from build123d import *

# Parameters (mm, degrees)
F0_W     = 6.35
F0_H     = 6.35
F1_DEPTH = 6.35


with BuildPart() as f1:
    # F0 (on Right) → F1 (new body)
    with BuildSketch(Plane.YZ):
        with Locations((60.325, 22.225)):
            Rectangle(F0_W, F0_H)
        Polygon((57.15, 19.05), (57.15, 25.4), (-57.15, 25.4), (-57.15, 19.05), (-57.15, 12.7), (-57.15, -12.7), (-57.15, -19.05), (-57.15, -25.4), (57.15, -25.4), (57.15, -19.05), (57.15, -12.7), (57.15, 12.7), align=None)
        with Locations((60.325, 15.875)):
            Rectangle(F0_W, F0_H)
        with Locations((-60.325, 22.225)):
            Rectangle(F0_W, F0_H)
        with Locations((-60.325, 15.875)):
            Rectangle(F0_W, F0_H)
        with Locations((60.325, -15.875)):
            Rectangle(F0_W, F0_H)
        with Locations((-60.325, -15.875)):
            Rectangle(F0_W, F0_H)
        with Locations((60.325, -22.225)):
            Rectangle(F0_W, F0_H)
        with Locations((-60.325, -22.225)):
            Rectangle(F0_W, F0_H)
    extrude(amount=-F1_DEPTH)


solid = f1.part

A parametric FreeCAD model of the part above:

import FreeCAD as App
import Part
import Sketcher
from FreeCAD import Vector
Q = App.Units.Quantity

doc = App.newDocument("Part")
body = doc.addObject("PartDesign::Body", "Body")

# Sketch on YZ plane
sketch1 = doc.addObject("Sketcher::SketchObject", "Sketch")
body.addObject(sketch1)
sketch1.AttachmentSupport = (doc.YZ_Plane, [""])
sketch1.MapMode = "FlatFace"
sketch1.addGeometry(Part.LineSegment(Vector(63.5, 25.4, 0), Vector(-63.5, 25.4, 0)), False)
sketch1.addGeometry(Part.LineSegment(Vector(-63.5, 25.4, 0), Vector(-63.5, 12.7, 0)), False)
sketch1.addGeometry(Part.LineSegment(Vector(-63.5, 12.7, 0), Vector(-57.15, 12.7, 0)), False)
sketch1.addGeometry(Part.LineSegment(Vector(-57.15, 12.7, 0), Vector(-57.15, -12.7, 0)), False)
sketch1.addGeometry(Part.LineSegment(Vector(-57.15, -12.7, 0), Vector(-63.5, -12.7, 0)), False)
sketch1.addGeometry(Part.LineSegment(Vector(-63.5, -12.7, 0), Vector(-63.5, -25.4, 0)), False)
sketch1.addGeometry(Part.LineSegment(Vector(-63.5, -25.4, 0), Vector(63.5, -25.4, 0)), False)
sketch1.addGeometry(Part.LineSegment(Vector(63.5, -25.4, 0), Vector(63.5, -12.7, 0)), False)
sketch1.addGeometry(Part.LineSegment(Vector(63.5, -12.7, 0), Vector(57.15, -12.7, 0)), False)
sketch1.addGeometry(Part.LineSegment(Vector(57.15, -12.7, 0), Vector(57.15, 12.7, 0)), False)
sketch1.addGeometry(Part.LineSegment(Vector(57.15, 12.7, 0), Vector(63.5, 12.7, 0)), False)
sketch1.addGeometry(Part.LineSegment(Vector(63.5, 12.7, 0), Vector(63.5, 25.4, 0)), False)
sketch1.addConstraint(Sketcher.Constraint("Coincident", 0, 2, 1, 1))
sketch1.addConstraint(Sketcher.Constraint("Coincident", 1, 2, 2, 1))
sketch1.addConstraint(Sketcher.Constraint("Coincident", 2, 2, 3, 1))
sketch1.addConstraint(Sketcher.Constraint("Coincident", 3, 2, 4, 1))
sketch1.addConstraint(Sketcher.Constraint("Coincident", 4, 2, 5, 1))
sketch1.addConstraint(Sketcher.Constraint("Coincident", 5, 2, 6, 1))
sketch1.addConstraint(Sketcher.Constraint("Coincident", 6, 2, 7, 1))
sketch1.addConstraint(Sketcher.Constraint("Coincident", 7, 2, 8, 1))
sketch1.addConstraint(Sketcher.Constraint("Coincident", 8, 2, 9, 1))
sketch1.addConstraint(Sketcher.Constraint("Coincident", 9, 2, 10, 1))
sketch1.addConstraint(Sketcher.Constraint("Coincident", 10, 2, 11, 1))
sketch1.addConstraint(Sketcher.Constraint("Coincident", 11, 2, 0, 1))
sketch1.addConstraint(Sketcher.Constraint("Horizontal", 0))
sketch1.addConstraint(Sketcher.Constraint("Vertical", 1))
sketch1.addConstraint(Sketcher.Constraint("Horizontal", 2))
sketch1.addConstraint(Sketcher.Constraint("Vertical", 3))
sketch1.addConstraint(Sketcher.Constraint("Horizontal", 4))
sketch1.addConstraint(Sketcher.Constraint("Vertical", 5))
sketch1.addConstraint(Sketcher.Constraint("Horizontal", 6))
sketch1.addConstraint(Sketcher.Constraint("Vertical", 7))
sketch1.addConstraint(Sketcher.Constraint("Horizontal", 8))
sketch1.addConstraint(Sketcher.Constraint("Vertical", 9))
sketch1.addConstraint(Sketcher.Constraint("Horizontal", 10))
sketch1.addConstraint(Sketcher.Constraint("Vertical", 11))
sketch1.addConstraint(Sketcher.Constraint("Symmetric", 0, 2, 6, 2, -1, 1))
sketch1.addConstraint(Sketcher.Constraint("Symmetric", 2, 2, 8, 2, -1, 1))
sketch1.addConstraint(Sketcher.Constraint("Symmetric", 4, 2, 10, 2, -1, 1))
sketch1.addConstraint(Sketcher.Constraint("Symmetric", 4, 2, 7, 2, -2))
sketch1.addConstraint(Sketcher.Constraint("DistanceX", 0, 2, 0, 1, Q("5 in")))
sketch1.addConstraint(Sketcher.Constraint("DistanceY", 3, 2, 3, 1, Q("1 in")))
sketch1.addConstraint(Sketcher.Constraint("DistanceY", 1, 2, 1, 1, Q("0.5 in")))
sketch1.addConstraint(Sketcher.Constraint("DistanceX", 2, 1, 2, 2, Q("0.25 in")))
pad1 = doc.addObject("PartDesign::Pad", "Pad")
body.addObject(pad1)
pad1.Profile = sketch1
pad1.Length = Q("0.25 in")
pad1.Reversed = True

doc.recompute()
